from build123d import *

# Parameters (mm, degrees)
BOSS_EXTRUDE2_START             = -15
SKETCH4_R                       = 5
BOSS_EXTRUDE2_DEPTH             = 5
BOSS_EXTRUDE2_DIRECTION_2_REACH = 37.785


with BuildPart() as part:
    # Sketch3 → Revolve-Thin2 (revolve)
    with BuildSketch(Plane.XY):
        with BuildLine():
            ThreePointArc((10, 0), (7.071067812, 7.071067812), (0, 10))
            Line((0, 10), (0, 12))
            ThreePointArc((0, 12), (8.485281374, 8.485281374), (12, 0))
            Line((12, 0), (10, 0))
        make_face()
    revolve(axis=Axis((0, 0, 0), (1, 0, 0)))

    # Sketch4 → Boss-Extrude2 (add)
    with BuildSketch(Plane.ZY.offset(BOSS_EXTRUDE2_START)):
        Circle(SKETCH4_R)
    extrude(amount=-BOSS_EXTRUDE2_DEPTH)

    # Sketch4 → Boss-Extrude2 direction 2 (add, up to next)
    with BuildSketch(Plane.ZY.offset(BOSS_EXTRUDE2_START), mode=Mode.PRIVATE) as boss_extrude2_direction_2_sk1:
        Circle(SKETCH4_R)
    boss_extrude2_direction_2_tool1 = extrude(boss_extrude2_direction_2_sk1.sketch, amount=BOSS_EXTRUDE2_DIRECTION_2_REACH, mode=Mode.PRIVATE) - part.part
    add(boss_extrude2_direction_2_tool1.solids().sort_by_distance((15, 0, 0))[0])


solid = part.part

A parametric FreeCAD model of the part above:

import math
import FreeCAD as App
import Part
import Sketcher

doc = App.newDocument("Part")
body = doc.addObject("PartDesign::Body", "Body")
body.AllowCompound = True

# Sketch on XY plane
sketch1 = body.newObject("Sketcher::SketchObject", "Sketch")
sketch1.AttachmentSupport = (doc.getObject("XY_Plane"), [""])
sketch1.MapMode = "FlatFace"
sketch1.addGeometry(Part.ArcOfCircle(Part.Circle(App.Vector(0, 0, 0), App.Vector(0, 0, 1), 10), math.radians(0), math.radians(90)), False)
sketch1.addGeometry(Part.LineSegment(App.Vector(10, 0, 0), App.Vector(12, 0, 0)), False)
sketch1.addGeometry(Part.ArcOfCircle(Part.Circle(App.Vector(0, 0, 0), App.Vector(0, 0, 1), 12), math.radians(0), math.radians(90)), False)
sketch1.addGeometry(Part.LineSegment(App.Vector(0, 12, 0), App.Vector(0, 10, 0)), False)
sketch1.addConstraint(Sketcher.Constraint("Coincident", 0, 1, 1, 1))
sketch1.addConstraint(Sketcher.Constraint("Coincident", 1, 2, 2, 1))
sketch1.addConstraint(Sketcher.Constraint("Coincident", 2, 2, 3, 1))
sketch1.addConstraint(Sketcher.Constraint("Coincident", 3, 2, 0, 2))
sketch1.addConstraint(Sketcher.Constraint("Horizontal", 1))
sketch1.addConstraint(Sketcher.Constraint("Vertical", 3))
sketch1.addConstraint(Sketcher.Constraint("Coincident", 0, 3, -1, 1))
sketch1.addConstraint(Sketcher.Constraint("Coincident", 2, 3, -1, 1))
sketch1.addConstraint(Sketcher.Constraint("PointOnObject", 0, 1, -1))
sketch1.addConstraint(Sketcher.Constraint("PointOnObject", 2, 2, -2))
sketch1.addConstraint(Sketcher.Constraint("Radius", 0, 10.0))
sketch1.addConstraint(Sketcher.Constraint("Radius", 2, 12.0))
revolution = body.newObject("PartDesign::Revolution", "Revolution")
revolution.Profile = sketch1
revolution.ReferenceAxis = (sketch1, ["H_Axis"])
revolution.Angle = 360

# Sketch on YZ plane
sketch2 = body.newObject("Sketcher::SketchObject", "Sketch001")
sketch2.AttachmentSupport = (doc.getObject("YZ_Plane"), [""])
sketch2.MapMode = "FlatFace"
sketch2.AttachmentOffset = App.Placement(App.Vector(0, 0, 15), App.Rotation())
sketch2.addGeometry(Part.Circle(App.Vector(0, 0, 0), App.Vector(0, 0, 1), 5), False)
sketch2.addConstraint(Sketcher.Constraint("Coincident", 0, 3, -1, 1))
sketch2.addConstraint(Sketcher.Constraint("Diameter", 0, 10.0))
pad1 = body.newObject("PartDesign::Pad", "Pad")
pad1.Profile = sketch2
pad1.Length = 5

# Sketch on YZ plane
sketch3 = body.newObject("Sketcher::SketchObject", "Sketch002")
sketch3.AttachmentSupport = (doc.getObject("YZ_Plane"), [""])
sketch3.MapMode = "FlatFace"
sketch3.AttachmentOffset = App.Placement(App.Vector(0, 0, 15), App.Rotation())
sketch3.addGeometry(Part.Circle(App.Vector(0, 0, 0), App.Vector(0, 0, 1), 5), False)
sketch3.addConstraint(Sketcher.Constraint("Coincident", 0, 3, -1, 1))
sketch3.addConstraint(Sketcher.Constraint("Diameter", 0, 10.0))
pad2 = body.newObject("PartDesign::Pad", "Pad001")
pad2.Profile = sketch3
pad2.Type = "UpToFirst"
pad2.Reversed = True

doc.recompute()
